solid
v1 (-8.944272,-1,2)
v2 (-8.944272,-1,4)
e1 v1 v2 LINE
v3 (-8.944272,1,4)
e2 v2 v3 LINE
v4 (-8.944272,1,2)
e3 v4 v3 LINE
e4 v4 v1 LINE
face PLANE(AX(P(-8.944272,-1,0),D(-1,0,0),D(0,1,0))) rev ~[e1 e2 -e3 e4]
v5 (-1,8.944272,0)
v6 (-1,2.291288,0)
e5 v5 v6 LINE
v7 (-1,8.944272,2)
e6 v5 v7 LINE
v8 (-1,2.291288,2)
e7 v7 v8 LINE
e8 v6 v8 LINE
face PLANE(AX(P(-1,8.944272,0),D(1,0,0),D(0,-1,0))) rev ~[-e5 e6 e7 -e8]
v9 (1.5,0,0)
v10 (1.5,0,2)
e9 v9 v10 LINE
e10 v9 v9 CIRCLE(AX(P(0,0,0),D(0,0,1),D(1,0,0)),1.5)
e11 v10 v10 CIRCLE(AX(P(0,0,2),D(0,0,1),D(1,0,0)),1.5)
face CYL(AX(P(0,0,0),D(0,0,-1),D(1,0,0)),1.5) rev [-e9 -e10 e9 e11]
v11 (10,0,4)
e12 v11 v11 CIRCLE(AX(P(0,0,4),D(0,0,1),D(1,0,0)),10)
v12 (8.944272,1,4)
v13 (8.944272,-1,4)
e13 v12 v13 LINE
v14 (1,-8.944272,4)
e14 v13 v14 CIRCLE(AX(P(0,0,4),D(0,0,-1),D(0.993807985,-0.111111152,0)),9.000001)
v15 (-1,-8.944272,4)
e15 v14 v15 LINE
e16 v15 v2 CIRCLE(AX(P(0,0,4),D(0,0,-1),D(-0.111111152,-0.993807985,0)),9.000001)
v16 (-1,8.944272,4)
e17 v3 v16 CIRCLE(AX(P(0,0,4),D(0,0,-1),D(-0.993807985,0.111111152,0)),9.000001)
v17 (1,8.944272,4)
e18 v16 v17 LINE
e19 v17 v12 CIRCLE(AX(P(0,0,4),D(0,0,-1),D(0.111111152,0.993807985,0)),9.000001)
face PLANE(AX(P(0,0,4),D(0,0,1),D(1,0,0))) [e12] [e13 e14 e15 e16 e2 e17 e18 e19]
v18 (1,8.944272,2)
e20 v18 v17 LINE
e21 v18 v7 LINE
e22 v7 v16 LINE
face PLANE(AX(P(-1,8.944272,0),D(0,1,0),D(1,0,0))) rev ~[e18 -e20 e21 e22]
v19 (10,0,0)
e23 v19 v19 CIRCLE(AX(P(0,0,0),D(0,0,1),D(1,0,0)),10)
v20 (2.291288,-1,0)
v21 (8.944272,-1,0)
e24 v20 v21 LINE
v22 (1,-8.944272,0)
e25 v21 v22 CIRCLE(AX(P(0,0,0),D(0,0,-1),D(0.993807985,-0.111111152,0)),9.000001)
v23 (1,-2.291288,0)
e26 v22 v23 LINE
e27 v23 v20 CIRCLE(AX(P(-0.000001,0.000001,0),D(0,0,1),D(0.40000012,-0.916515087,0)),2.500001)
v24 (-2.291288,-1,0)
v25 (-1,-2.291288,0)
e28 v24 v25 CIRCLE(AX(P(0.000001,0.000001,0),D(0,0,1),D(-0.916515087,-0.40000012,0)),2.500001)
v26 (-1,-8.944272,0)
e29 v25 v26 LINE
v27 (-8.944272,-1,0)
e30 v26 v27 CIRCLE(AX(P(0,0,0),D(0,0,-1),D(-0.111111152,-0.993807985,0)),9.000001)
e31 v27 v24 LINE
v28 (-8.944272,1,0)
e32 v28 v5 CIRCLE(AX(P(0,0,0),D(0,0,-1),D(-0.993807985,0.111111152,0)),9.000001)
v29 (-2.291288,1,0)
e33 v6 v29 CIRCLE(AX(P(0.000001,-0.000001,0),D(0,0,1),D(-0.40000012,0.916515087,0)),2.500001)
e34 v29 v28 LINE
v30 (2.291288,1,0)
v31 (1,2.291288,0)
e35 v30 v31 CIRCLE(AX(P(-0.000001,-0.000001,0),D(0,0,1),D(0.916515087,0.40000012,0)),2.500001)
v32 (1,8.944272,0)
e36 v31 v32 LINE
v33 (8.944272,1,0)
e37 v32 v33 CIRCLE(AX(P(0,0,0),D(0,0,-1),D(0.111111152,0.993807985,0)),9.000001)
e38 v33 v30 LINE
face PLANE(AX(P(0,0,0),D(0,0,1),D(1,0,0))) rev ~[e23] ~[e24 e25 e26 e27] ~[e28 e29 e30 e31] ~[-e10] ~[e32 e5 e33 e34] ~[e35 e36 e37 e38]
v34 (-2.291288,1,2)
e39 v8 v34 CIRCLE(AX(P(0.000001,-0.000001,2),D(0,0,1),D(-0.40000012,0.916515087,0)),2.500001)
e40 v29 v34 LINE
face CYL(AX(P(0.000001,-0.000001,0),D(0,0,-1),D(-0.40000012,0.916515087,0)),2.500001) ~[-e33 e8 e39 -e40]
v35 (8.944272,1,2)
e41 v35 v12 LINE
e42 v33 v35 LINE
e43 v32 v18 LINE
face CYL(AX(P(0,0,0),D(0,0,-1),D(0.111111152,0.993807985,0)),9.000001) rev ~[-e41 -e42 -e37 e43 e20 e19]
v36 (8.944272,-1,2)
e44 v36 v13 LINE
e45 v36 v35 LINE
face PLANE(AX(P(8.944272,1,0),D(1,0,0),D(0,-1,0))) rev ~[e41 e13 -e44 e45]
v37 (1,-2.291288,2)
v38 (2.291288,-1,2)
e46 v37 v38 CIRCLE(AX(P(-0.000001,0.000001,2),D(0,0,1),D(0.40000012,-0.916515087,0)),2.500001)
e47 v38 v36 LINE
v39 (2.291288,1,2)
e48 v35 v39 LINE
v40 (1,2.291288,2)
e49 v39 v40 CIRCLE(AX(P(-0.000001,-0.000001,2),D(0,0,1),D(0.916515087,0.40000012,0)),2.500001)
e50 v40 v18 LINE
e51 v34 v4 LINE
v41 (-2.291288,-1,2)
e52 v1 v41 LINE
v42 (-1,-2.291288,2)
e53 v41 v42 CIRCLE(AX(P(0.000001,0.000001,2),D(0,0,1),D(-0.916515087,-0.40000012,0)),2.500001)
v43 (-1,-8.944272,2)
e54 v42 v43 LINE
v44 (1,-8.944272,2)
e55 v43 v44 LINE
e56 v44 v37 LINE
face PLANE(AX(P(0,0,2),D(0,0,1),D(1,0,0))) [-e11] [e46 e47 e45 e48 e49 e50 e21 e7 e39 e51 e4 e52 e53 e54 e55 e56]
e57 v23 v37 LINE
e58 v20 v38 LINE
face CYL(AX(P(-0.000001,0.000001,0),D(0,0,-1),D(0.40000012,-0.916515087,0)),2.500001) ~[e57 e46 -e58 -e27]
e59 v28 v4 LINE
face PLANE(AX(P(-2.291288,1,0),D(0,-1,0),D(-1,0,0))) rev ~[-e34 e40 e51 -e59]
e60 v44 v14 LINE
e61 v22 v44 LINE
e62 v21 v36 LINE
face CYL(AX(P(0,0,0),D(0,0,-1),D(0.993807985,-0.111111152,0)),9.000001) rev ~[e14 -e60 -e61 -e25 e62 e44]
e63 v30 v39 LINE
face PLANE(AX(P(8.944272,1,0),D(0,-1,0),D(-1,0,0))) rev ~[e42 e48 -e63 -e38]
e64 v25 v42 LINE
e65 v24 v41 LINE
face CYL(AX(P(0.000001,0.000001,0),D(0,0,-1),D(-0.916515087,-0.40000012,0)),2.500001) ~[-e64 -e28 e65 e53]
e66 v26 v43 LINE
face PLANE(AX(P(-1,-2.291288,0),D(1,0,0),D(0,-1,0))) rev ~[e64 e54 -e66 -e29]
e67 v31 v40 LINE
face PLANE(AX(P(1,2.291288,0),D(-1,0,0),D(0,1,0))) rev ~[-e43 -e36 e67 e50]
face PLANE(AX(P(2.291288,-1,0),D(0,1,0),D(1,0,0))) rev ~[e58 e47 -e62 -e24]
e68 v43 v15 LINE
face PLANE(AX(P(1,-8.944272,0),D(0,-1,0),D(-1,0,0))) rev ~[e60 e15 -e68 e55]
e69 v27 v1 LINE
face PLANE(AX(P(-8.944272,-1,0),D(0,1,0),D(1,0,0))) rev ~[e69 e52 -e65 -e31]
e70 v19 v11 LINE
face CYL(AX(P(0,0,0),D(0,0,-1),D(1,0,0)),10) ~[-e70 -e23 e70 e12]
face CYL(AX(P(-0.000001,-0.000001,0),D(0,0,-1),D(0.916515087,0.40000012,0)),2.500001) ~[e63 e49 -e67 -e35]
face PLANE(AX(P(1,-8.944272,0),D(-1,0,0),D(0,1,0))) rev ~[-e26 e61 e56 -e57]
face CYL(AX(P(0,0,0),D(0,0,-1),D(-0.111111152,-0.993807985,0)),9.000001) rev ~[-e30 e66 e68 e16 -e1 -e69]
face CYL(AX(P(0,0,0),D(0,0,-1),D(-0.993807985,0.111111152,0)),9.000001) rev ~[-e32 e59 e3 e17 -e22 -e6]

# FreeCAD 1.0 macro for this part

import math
import FreeCAD as App
import Part
import Sketcher

V = App.Vector

doc = App.newDocument("Part")
body = doc.addObject("PartDesign::Body", "Body")

# Sketch on XY plane
sketch1 = doc.addObject("Sketcher::SketchObject", "Sketch")
body.addObject(sketch1)
sketch1.AttachmentSupport = (doc.XY_Plane, [""])
sketch1.MapMode = "FlatFace"
sketch1.addGeometry([
    Part.LineSegment(V(-8.9, 1, 0), V(-8.9, -1, 0)),  # 0
    Part.LineSegment(V(-8.9, -1, 0), V(-2.3, -1, 0)),  # 1
    Part.ArcOfCircle(Part.Circle(V(0, 0, 0), V(0, 0, 1), 2.5), math.radians(-156), math.radians(-114)),  # 2
    Part.LineSegment(V(-1, -2.3, 0), V(-1, -8.9, 0)),  # 3
    Part.LineSegment(V(-1, -8.9, 0), V(1, -8.9, 0)),  # 4
    Part.LineSegment(V(1, -8.9, 0), V(1, -2.3, 0)),  # 5
    Part.ArcOfCircle(Part.Circle(V(0, 0, 0), V(0, 0, 1), 2.5), math.radians(-66), math.radians(-24)),  # 6
    Part.LineSegment(V(2.3, -1, 0), V(8.9, -1, 0)),  # 7
    Part.LineSegment(V(8.9, -1, 0), V(8.9, 1, 0)),  # 8
    Part.LineSegment(V(8.9, 1, 0), V(2.3, 1, 0)),  # 9
    Part.ArcOfCircle(Part.Circle(V(0, 0, 0), V(0, 0, 1), 2.5), math.radians(24), math.radians(66)),  # 10
    Part.LineSegment(V(1, 2.3, 0), V(1, 8.9, 0)),  # 11
    Part.LineSegment(V(1, 8.9, 0), V(-1, 8.9, 0)),  # 12
    Part.LineSegment(V(-1, 8.9, 0), V(-1, 2.3, 0)),  # 13
    Part.ArcOfCircle(Part.Circle(V(0, 0, 0), V(0, 0, 1), 2.5), math.radians(114), math.radians(156)),  # 14
    Part.LineSegment(V(-2.3, 1, 0), V(-8.9, 1, 0)),  # 15
    Part.Circle(V(0, 0, 0), V(0, 0, 1), 1.5),  # 16
], False)
sketch1.addConstraint([
    Sketcher.Constraint("Coincident", 0, 2, 1, 1),
    Sketcher.Constraint("Coincident", 1, 2, 2, 1),
    Sketcher.Constraint("Coincident", 2, 2, 3, 1),
    Sketcher.Constraint("Coincident", 3, 2, 4, 1),
    Sketcher.Constraint("Coincident", 4, 2, 5, 1),
    Sketcher.Constraint("Coincident", 5, 2, 6, 1),
    Sketcher.Constraint("Coincident", 6, 2, 7, 1),
    Sketcher.Constraint("Coincident", 7, 2, 8, 1),
    Sketcher.Constraint("Coincident", 8, 2, 9, 1),
    Sketcher.Constraint("Coincident", 9, 2, 10, 1),
    Sketcher.Constraint("Coincident", 10, 2, 11, 1),
    Sketcher.Constraint("Coincident", 11, 2, 12, 1),
    Sketcher.Constraint("Coincident", 12, 2, 13, 1),
    Sketcher.Constraint("Coincident", 13, 2, 14, 1),
    Sketcher.Constraint("Coincident", 14, 2, 15, 1),
    Sketcher.Constraint("Coincident", 15, 2, 0, 1),
    Sketcher.Constraint("Vertical", 0),
    Sketcher.Constraint("Horizontal", 1),
    Sketcher.Constraint("Vertical", 3),
    Sketcher.Constraint("Horizontal", 4),
    Sketcher.Constraint("Vertical", 5),
    Sketcher.Constraint("Horizontal", 7),
    Sketcher.Constraint("Vertical", 8),
    Sketcher.Constraint("Horizontal", 9),
    Sketcher.Constraint("Vertical", 11),
    Sketcher.Constraint("Horizontal", 12),
    Sketcher.Constraint("Vertical", 13),
    Sketcher.Constraint("Horizontal", 15),
    Sketcher.Constraint("Coincident", 2, 3, -1, 1),
    Sketcher.Constraint("Coincident", 6, 3, -1, 1),
    Sketcher.Constraint("Coincident", 10, 3, -1, 1),
    Sketcher.Constraint("Coincident", 14, 3, -1, 1),
    Sketcher.Constraint("Coincident", 16, 3, -1, 1),
    Sketcher.Constraint("Equal", 2, 6),
    Sketcher.Constraint("Equal", 6, 10),
    Sketcher.Constraint("Equal", 10, 14),
    Sketcher.Constraint("Symmetric", 0, 2, 8, 2, -1, 1),
    Sketcher.Constraint("Symmetric", 3, 2, 11, 2, -1, 1),
    Sketcher.Constraint("Horizontal", 2, 2, 5, 2),
    Sketcher.Constraint("Horizontal", 1, 2, 6, 2),
    Sketcher.Constraint("Horizontal", 10, 2, 13, 2),
    Sketcher.Constraint("Horizontal", 9, 2, 14, 2),
    Sketcher.Constraint("Equal", 12, 0),
    Sketcher.Constraint("Equal", 15, 3),
    Sketcher.Constraint("Diameter", 16, 3.0),
    Sketcher.Constraint("Radius", 2, 2.500001),
    Sketcher.Constraint("DistanceX", 4, 1, 4, 2, 2.0),
    Sketcher.Constraint("DistanceX", 1, 1, 1, 2, 6.652984),
])
pad1 = doc.addObject("PartDesign::Pad", "Pad")
body.addObject(pad1)
pad1.Profile = sketch1
pad1.Length = 2

# Sketch on XY plane
sketch2 = doc.addObject("Sketcher::SketchObject", "Sketch001")
body.addObject(sketch2)
sketch2.AttachmentSupport = (doc.XY_Plane, [""])
sketch2.MapMode = "FlatFace"
sketch2.addGeometry([
    Part.Circle(V(0, 0, 0), V(0, 0, 1), 10),  # 0
    Part.LineSegment(V(1, -8.9, 0), V(-1, -8.9, 0)),  # 1
    Part.ArcOfCircle(Part.Circle(V(0, 0, 0), V(0, 0, 1), 9), math.radians(-174), math.radians(-96)),  # 2
    Part.LineSegment(V(-8.9, -1, 0), V(-8.9, 1, 0)),  # 3
    Part.ArcOfCircle(Part.Circle(V(0, 0, 0), V(0, 0, 1), 9), math.radians(96), math.radians(174)),  # 4
    Part.LineSegment(V(-1, 8.9, 0), V(1, 8.9, 0)),  # 5
    Part.ArcOfCircle(Part.Circle(V(0, 0, 0), V(0, 0, 1), 9), math.radians(6), math.radians(84)),  # 6
    Part.LineSegment(V(8.9, 1, 0), V(8.9, -1, 0)),  # 7
    Part.ArcOfCircle(Part.Circle(V(0, 0, 0), V(0, 0, 1), 9), math.radians(-84), math.radians(-6)),  # 8
], False)
sketch2.addConstraint([
    Sketcher.Constraint("Coincident", 1, 2, 2, 2),
    Sketcher.Constraint("Coincident", 2, 1, 3, 1),
    Sketcher.Constraint("Coincident", 3, 2, 4, 2),
    Sketcher.Constraint("Coincident", 4, 1, 5, 1),
    Sketcher.Constraint("Coincident", 5, 2, 6, 2),
    Sketcher.Constraint("Coincident", 6, 1, 7, 1),
    Sketcher.Constraint("Coincident", 7, 2, 8, 2),
    Sketcher.Constraint("Coincident", 8, 1, 1, 1),
    Sketcher.Constraint("Horizontal", 1),
    Sketcher.Constraint("Vertical", 3),
    Sketcher.Constraint("Horizontal", 5),
    Sketcher.Constraint("Vertical", 7),
    Sketcher.Constraint("Coincident", 0, 3, -1, 1),
    Sketcher.Constraint("Coincident", 2, 3, -1, 1),
    Sketcher.Constraint("Coincident", 4, 3, -1, 1),
    Sketcher.Constraint("Coincident", 6, 3, -1, 1),
    Sketcher.Constraint("Coincident", 8, 3, -1, 1),
    Sketcher.Constraint("Equal", 2, 4),
    Sketcher.Constraint("Equal", 4, 6),
    Sketcher.Constraint("Equal", 6, 8),
    Sketcher.Constraint("Horizontal", 3, 2, 6, 1),
    Sketcher.Constraint("Vertical", 1, 2, 4, 1),
    Sketcher.Constraint("Equal", 5, 3),
    Sketcher.Constraint("Diameter", 0, 20.0),
    Sketcher.Constraint("Radius", 2, 9.000001),
    Sketcher.Constraint("DistanceX", 1, 2, 1, 1, 2.0),
])
pad2 = doc.addObject("PartDesign::Pad", "Pad001")
body.addObject(pad2)
pad2.Profile = sketch2
pad2.Length = 4

doc.recompute()
